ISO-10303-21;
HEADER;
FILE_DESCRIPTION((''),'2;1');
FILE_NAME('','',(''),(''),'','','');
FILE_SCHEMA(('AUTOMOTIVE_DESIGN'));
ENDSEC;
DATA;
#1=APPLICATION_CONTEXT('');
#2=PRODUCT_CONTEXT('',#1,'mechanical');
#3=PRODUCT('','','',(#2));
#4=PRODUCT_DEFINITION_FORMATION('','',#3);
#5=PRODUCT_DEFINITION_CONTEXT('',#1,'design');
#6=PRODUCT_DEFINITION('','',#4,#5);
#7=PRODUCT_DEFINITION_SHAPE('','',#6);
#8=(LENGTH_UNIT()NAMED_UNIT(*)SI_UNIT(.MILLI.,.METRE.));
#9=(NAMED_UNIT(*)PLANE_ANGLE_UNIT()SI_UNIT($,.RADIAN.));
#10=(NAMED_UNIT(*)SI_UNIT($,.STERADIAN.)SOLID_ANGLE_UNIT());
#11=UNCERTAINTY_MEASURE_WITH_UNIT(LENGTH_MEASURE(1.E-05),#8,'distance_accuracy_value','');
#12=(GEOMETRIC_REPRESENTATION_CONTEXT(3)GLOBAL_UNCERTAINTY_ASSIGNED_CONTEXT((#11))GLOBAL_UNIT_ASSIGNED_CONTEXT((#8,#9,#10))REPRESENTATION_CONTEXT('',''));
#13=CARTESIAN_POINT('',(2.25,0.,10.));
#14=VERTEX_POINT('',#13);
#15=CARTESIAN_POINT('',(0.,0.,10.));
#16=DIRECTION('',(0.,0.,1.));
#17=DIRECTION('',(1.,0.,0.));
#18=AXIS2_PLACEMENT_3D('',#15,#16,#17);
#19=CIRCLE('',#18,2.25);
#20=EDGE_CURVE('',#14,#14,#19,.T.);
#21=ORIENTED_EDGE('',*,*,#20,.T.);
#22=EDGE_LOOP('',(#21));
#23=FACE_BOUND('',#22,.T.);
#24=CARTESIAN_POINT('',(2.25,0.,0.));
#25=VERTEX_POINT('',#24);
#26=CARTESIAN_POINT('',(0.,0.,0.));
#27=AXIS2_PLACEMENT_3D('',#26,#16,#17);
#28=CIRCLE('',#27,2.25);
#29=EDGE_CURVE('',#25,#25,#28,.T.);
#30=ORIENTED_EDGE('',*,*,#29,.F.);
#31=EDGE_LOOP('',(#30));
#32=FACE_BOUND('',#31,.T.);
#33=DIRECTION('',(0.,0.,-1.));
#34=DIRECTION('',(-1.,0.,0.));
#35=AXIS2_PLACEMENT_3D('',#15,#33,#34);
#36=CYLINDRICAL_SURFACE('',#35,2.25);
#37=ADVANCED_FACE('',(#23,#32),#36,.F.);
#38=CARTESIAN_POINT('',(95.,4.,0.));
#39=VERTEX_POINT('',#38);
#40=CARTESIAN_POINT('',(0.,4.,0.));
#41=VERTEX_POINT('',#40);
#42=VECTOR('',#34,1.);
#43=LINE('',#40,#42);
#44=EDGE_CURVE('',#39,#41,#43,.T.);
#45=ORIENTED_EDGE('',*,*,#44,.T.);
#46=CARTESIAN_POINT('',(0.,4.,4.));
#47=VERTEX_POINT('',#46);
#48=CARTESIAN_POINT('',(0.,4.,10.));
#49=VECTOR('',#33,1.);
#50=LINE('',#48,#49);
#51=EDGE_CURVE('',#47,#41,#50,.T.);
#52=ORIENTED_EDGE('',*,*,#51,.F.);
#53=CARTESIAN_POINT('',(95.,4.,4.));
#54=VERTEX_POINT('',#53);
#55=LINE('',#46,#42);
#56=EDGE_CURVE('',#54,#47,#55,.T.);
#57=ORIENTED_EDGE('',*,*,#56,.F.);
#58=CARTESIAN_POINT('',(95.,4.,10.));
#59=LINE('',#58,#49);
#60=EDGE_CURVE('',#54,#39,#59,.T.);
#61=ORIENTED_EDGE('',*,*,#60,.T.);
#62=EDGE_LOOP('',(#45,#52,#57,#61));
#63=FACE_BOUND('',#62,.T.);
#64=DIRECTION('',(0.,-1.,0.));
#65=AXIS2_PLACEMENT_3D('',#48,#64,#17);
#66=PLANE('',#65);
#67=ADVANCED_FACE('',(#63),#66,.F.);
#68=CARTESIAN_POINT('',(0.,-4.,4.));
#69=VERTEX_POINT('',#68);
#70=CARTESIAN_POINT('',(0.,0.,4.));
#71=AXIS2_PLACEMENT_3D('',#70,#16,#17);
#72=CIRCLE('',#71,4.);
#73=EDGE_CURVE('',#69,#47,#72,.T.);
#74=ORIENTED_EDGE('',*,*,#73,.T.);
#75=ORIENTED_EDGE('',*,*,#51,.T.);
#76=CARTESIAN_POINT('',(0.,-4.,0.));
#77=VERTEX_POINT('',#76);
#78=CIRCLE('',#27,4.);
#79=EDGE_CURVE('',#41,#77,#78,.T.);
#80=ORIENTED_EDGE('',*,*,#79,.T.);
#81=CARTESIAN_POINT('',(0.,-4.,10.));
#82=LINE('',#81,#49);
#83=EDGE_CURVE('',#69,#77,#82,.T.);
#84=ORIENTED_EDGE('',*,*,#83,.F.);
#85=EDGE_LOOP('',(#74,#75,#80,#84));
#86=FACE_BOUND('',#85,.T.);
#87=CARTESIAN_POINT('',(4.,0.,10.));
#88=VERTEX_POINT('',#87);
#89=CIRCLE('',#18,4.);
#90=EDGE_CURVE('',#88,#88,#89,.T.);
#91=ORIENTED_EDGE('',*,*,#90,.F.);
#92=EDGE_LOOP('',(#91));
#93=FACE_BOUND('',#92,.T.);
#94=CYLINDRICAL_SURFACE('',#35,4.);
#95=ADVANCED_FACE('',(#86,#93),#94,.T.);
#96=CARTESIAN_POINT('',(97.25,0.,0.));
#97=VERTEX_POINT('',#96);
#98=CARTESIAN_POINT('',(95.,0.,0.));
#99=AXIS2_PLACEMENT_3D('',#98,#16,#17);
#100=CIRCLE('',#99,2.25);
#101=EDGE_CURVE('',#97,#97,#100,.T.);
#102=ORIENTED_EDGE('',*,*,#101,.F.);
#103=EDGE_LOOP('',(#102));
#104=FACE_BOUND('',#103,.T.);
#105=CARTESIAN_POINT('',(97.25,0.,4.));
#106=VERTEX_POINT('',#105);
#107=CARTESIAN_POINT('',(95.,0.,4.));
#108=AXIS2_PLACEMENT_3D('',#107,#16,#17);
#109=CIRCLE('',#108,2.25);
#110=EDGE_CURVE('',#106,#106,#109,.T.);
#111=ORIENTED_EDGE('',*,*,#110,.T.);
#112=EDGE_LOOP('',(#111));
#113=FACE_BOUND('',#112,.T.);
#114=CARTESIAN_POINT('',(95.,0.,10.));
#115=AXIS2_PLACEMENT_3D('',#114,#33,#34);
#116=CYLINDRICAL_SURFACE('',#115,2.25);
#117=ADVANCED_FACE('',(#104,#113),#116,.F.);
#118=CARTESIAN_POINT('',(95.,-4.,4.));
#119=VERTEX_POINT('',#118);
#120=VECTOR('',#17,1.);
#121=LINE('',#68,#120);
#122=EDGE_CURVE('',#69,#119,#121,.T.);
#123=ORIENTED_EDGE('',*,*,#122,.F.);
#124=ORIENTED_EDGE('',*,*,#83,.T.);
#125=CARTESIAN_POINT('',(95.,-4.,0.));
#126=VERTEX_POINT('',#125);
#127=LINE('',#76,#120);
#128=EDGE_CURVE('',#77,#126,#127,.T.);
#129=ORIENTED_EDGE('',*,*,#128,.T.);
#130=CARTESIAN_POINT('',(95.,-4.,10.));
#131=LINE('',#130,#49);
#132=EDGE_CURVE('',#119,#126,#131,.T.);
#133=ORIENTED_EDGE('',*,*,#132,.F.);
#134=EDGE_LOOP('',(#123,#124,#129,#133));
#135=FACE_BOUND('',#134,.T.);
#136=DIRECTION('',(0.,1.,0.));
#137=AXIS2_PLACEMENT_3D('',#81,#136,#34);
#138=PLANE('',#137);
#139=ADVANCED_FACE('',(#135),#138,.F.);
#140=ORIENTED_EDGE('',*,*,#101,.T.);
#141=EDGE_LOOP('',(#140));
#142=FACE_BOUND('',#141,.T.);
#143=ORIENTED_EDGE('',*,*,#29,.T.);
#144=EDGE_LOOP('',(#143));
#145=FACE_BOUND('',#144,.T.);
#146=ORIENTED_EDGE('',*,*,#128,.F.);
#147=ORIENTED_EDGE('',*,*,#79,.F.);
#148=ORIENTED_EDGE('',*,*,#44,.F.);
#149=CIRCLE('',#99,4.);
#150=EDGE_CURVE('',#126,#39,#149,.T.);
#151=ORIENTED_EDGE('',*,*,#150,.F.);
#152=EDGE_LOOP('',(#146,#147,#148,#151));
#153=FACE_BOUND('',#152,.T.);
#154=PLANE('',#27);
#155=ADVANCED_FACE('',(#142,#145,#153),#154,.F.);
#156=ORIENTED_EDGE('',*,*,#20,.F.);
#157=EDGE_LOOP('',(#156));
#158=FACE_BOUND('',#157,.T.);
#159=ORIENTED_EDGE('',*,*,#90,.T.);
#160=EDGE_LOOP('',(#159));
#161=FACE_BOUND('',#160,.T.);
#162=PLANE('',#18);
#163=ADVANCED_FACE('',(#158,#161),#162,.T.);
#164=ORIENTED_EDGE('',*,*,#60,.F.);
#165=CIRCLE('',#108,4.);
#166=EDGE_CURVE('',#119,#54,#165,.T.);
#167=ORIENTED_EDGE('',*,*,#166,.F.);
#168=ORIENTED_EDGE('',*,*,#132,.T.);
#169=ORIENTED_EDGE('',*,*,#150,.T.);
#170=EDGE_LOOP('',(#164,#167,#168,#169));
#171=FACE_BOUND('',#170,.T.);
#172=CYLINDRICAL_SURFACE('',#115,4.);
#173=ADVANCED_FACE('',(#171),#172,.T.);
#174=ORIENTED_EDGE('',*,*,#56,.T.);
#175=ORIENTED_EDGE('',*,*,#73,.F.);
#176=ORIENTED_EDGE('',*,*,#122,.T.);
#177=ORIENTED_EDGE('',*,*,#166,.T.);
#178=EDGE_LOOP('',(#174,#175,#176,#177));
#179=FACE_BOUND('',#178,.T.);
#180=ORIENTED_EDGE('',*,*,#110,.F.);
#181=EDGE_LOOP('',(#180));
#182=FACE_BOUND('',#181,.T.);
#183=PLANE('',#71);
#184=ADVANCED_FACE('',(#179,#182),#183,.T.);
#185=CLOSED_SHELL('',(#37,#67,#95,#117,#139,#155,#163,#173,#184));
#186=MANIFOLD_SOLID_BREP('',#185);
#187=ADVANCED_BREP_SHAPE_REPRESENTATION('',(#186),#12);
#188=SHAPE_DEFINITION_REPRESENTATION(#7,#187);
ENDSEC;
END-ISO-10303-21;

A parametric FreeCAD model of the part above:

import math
import FreeCAD as App
import Part
import Sketcher
from FreeCAD import Vector
Q = App.Units.Quantity

doc = App.newDocument("Part")
body = doc.addObject("PartDesign::Body", "Body")

# Sketch on XY plane
sketch1 = body.newObject("Sketcher::SketchObject", "Sketch")
sketch1.AttachmentSupport = (doc.getObject("XY_Plane"), [""])
sketch1.MapMode = "FlatFace"
sketch1.addGeometry(Part.LineSegment(Vector(95, 4, 0), Vector(0, 4, 0)), False)
sketch1.addGeometry(Part.ArcOfCircle(Part.Circle(Vector(0, 0, 0), Vector(0, 0, 1), 4), math.radians(90), math.radians(270)), False)
sketch1.addGeometry(Part.LineSegment(Vector(0, -4, 0), Vector(95, -4, 0)), False)
sketch1.addGeometry(Part.ArcOfCircle(Part.Circle(Vector(95, 0, 0), Vector(0, 0, 1), 4), math.radians(-90), math.radians(90)), False)
sketch1.addGeometry(Part.Circle(Vector(95, 0, 0), Vector(0, 0, 1), 2.2), False)
sketch1.addGeometry(Part.Circle(Vector(0, 0, 0), Vector(0, 0, 1), 2.2), False)
sketch1.addConstraint(Sketcher.Constraint("Tangent", 0, 2, 1, 1))
sketch1.addConstraint(Sketcher.Constraint("Tangent", 1, 2, 2, 1))
sketch1.addConstraint(Sketcher.Constraint("Tangent", 2, 2, 3, 1))
sketch1.addConstraint(Sketcher.Constraint("Tangent", 3, 2, 0, 1))
sketch1.addConstraint(Sketcher.Constraint("Horizontal", 0))
sketch1.addConstraint(Sketcher.Constraint("Horizontal", 2))
sketch1.addConstraint(Sketcher.Constraint("Coincident", 1, 3, -1, 1))
sketch1.addConstraint(Sketcher.Constraint("Coincident", 5, 3, -1, 1))
sketch1.addConstraint(Sketcher.Constraint("Coincident", 4, 3, 3, 3))
sketch1.addConstraint(Sketcher.Constraint("Equal", 4, 5))
sketch1.addConstraint(Sketcher.Constraint("Radius", 1, Q("4 mm")))
sketch1.addConstraint(Sketcher.Constraint("Diameter", 4, Q("4.5 mm")))
sketch1.addConstraint(Sketcher.Constraint("DistanceX", 0, 2, 0, 1, Q("95 mm")))
pad1 = body.newObject("PartDesign::Pad", "Pad")
pad1.Profile = sketch1
pad1.Length = 10

# Sketch on XY plane
sketch2 = body.newObject("Sketcher::SketchObject", "Sketch001")
sketch2.AttachmentSupport = (doc.getObject("XY_Plane"), [""])
sketch2.MapMode = "FlatFace"
sketch2.AttachmentOffset = App.Placement(Vector(0, 0, 4), App.Rotation())
sketch2.addGeometry(Part.Circle(Vector(0, 0, 0), Vector(0, 0, 1), 104), False)
sketch2.addGeometry(Part.Circle(Vector(0, 0, 0), Vector(0, 0, 1), 4), False)
sketch2.addConstraint(Sketcher.Constraint("Coincident", 0, 3, -1, 1))
sketch2.addConstraint(Sketcher.Constraint("Coincident", 1, 3, -1, 1))
sketch2.addConstraint(Sketcher.Constraint("Diameter", 0, Q("208 mm")))
sketch2.addConstraint(Sketcher.Constraint("Diameter", 1, Q("8 mm")))
pocket1 = body.newObject("PartDesign::Pocket", "Pocket")
pocket1.Profile = sketch2
pocket1.Length = 6
pocket1.Reversed = True

doc.recompute()
